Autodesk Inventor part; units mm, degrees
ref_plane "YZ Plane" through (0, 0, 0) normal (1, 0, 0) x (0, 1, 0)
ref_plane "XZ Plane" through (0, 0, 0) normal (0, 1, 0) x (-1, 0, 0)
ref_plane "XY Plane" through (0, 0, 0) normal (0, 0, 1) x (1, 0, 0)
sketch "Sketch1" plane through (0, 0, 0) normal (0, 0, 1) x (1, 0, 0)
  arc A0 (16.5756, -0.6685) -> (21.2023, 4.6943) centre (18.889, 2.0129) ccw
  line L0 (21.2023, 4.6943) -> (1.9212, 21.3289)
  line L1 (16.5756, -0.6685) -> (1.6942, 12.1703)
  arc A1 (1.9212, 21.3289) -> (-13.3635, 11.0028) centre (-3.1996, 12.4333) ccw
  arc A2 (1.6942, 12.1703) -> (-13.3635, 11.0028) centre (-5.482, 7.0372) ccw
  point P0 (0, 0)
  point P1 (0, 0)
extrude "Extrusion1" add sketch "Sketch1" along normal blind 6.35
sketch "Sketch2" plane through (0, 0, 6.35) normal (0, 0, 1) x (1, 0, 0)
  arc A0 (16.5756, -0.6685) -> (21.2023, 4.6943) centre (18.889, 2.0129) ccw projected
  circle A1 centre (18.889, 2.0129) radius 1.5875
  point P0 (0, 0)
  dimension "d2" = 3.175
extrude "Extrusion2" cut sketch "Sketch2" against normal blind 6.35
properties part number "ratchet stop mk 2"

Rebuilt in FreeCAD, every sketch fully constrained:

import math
import FreeCAD as App
import Part
import Sketcher
Q = App.Units.Quantity

doc = App.newDocument("Part")
params = doc.addObject("Spreadsheet::Sheet", "Params")
for row, (alias, value) in enumerate([
    ("pad1_length", "0.25 in"),
    ("sketch2_diameter", "0.125 in"),
    ("pocket1_length", "0.25 in"),
], start=1):
    params.set(f"A{row}", alias)
    params.set(f"B{row}", "=" + value)
    params.setAlias(f"B{row}", alias)

body = doc.addObject("PartDesign::Body", "Body")

sketch1 = body.newObject("Sketcher::SketchObject", "Sketch")
sketch1.AttachmentSupport = (doc.getObject("XY_Plane"), [""])
sketch1.MapMode = "FlatFace"
sketch1.addGeometry([
    Part.LineSegment(App.Vector(1.6942, 12.1703, 0), App.Vector(16.5756, -0.6685, 0)),
    Part.ArcOfCircle(Part.Circle(App.Vector(18.889, 2.0129, 0), App.Vector(0, 0, 1), 3.54143), math.radians(-130.786254), math.radians(49.214971)),
    Part.LineSegment(App.Vector(21.2023, 4.6943, 0), App.Vector(1.9212, 21.3289, 0)),
    Part.ArcOfCircle(Part.Circle(App.Vector(-3.1996, 12.4333, 0), App.Vector(0, 0, 1), 10.264224), math.radians(60.072886), math.radians(188.011371)),
    Part.ArcOfCircle(Part.Circle(App.Vector(-5.482, 7.0372, 0), App.Vector(0, 0, 1), 8.82307), math.radians(35.575951), math.radians(153.29061)),
], False)
sketch1.addConstraint([
    Sketcher.Constraint("Tangent", 0, 2, 1, 1),
    Sketcher.Constraint("Tangent", 1, 2, 2, 1),
    Sketcher.Constraint("Coincident", 2, 2, 3, 1),
    Sketcher.Constraint("Coincident", 3, 2, 4, 2),
    Sketcher.Constraint("Coincident", 4, 1, 0, 1),
    Sketcher.Constraint("Parallel", 0, 2),
    Sketcher.Constraint("Radius", 3, Q("0.4041 in")),
    Sketcher.Constraint("Radius", 1, Q("3.5414 mm")),
    Sketcher.Constraint("Radius", 4, Q("8.823 mm")),
    Sketcher.Constraint("Distance", 0, Q("0.7738 in")),
    Sketcher.Constraint("DistanceY", -1, 1, 3, 3, Q("0.4895 in")),
    Sketcher.Constraint("DistanceX", -1, 1, 4, 1, Q("0.0667 in")),
    Sketcher.Constraint("DistanceX", 4, 3, 1, 3, Q("0.9595 in")),
    Sketcher.Constraint("DistanceY", 1, 3, 4, 3, Q("0.1978 in")),
    Sketcher.Constraint("DistanceX", 3, 3, 1, 2, Q("0.9607 in")),
    Sketcher.Constraint("DistanceX", 3, 3, 2, 2, Q("0.2016 in")),
])
pad1 = body.newObject("PartDesign::Pad", "Pad")
pad1.Profile = sketch1
pad1.setExpression("Length", "Params.pad1_length")

sketch2 = body.newObject("Sketcher::SketchObject", "Sketch001")
sketch2.AttachmentSupport = (doc.getObject("XY_Plane"), [""])
sketch2.MapMode = "FlatFace"
sketch2.AttachmentOffset = App.Placement(App.Vector(0, 0, 0.25 * 25.4), App.Rotation())
sketch2.addGeometry(Part.Circle(App.Vector(18.889, 2.0129, 0), App.Vector(0, 0, 1), 1.5875), False)
sketch2.addConstraint([
    Sketcher.Constraint("Diameter", 0, Q("0.125 in")),
    Sketcher.Constraint("DistanceX", -1, 1, 0, 3, Q("18.889 mm")),
    Sketcher.Constraint("DistanceY", -1, 1, 0, 3, Q("2.013 mm")),
])
sketch2.setExpression("Constraints[0]", "Params.sketch2_diameter")
pocket1 = body.newObject("PartDesign::Pocket", "Pocket")
pocket1.Profile = sketch2
pocket1.setExpression("Length", "Params.pocket1_length")

doc.recompute()
